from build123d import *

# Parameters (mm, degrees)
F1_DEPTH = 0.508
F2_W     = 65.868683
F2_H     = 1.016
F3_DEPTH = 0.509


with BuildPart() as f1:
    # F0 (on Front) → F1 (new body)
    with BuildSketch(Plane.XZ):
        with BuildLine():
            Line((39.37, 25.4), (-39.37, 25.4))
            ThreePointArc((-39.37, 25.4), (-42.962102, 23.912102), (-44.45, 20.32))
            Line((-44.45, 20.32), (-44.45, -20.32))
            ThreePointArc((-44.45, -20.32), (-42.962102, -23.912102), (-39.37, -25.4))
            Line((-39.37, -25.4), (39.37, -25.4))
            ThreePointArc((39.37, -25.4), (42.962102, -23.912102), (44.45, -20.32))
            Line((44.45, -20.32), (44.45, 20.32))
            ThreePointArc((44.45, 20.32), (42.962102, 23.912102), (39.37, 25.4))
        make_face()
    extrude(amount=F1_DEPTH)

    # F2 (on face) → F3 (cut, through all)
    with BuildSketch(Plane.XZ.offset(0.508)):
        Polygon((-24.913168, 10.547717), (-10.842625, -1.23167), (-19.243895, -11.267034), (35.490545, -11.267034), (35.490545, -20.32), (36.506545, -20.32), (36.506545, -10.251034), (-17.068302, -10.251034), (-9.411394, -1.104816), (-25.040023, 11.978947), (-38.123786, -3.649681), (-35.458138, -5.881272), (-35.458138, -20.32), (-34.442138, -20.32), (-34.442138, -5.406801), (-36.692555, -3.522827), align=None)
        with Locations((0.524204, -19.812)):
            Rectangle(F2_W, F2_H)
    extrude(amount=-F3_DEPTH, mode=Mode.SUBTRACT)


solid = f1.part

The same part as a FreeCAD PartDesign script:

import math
import FreeCAD as App
import Part
import Sketcher
Q = App.Units.Quantity

doc = App.newDocument("Part")
body = doc.addObject("PartDesign::Body", "Body")

# Sketch on XZ plane
sketch1 = body.newObject("Sketcher::SketchObject", "Sketch")
sketch1.AttachmentSupport = (doc.getObject("XZ_Plane"), [""])
sketch1.MapMode = "FlatFace"
sketch1.addGeometry(Part.LineSegment(App.Vector(39, 25, 0), App.Vector(-39, 25, 0)), False)
sketch1.addGeometry(Part.ArcOfCircle(Part.Circle(App.Vector(-39, 20, 0), App.Vector(0, 0, 1), 5), math.radians(90), math.radians(180)), False)
sketch1.addGeometry(Part.LineSegment(App.Vector(-44, 20, 0), App.Vector(-44, -20, 0)), False)
sketch1.addGeometry(Part.ArcOfCircle(Part.Circle(App.Vector(-39, -20, 0), App.Vector(0, 0, 1), 5), math.radians(-180), math.radians(-90)), False)
sketch1.addGeometry(Part.LineSegment(App.Vector(-39, -25, 0), App.Vector(39, -25, 0)), False)
sketch1.addGeometry(Part.ArcOfCircle(Part.Circle(App.Vector(39, -20, 0), App.Vector(0, 0, 1), 5), math.radians(-90), math.radians(0)), False)
sketch1.addGeometry(Part.LineSegment(App.Vector(44, -20, 0), App.Vector(44, 20, 0)), False)
sketch1.addGeometry(Part.ArcOfCircle(Part.Circle(App.Vector(39, 20, 0), App.Vector(0, 0, 1), 5), math.radians(0), math.radians(90)), False)
sketch1.addConstraint(Sketcher.Constraint("Tangent", 0, 2, 1, 1))
sketch1.addConstraint(Sketcher.Constraint("Tangent", 1, 2, 2, 1))
sketch1.addConstraint(Sketcher.Constraint("Tangent", 2, 2, 3, 1))
sketch1.addConstraint(Sketcher.Constraint("Tangent", 3, 2, 4, 1))
sketch1.addConstraint(Sketcher.Constraint("Tangent", 4, 2, 5, 1))
sketch1.addConstraint(Sketcher.Constraint("Tangent", 5, 2, 6, 1))
sketch1.addConstraint(Sketcher.Constraint("Tangent", 6, 2, 7, 1))
sketch1.addConstraint(Sketcher.Constraint("Tangent", 7, 2, 0, 1))
sketch1.addConstraint(Sketcher.Constraint("Horizontal", 0))
sketch1.addConstraint(Sketcher.Constraint("Vertical", 2))
sketch1.addConstraint(Sketcher.Constraint("Horizontal", 4))
sketch1.addConstraint(Sketcher.Constraint("Vertical", 6))
sketch1.addConstraint(Sketcher.Constraint("Equal", 1, 3))
sketch1.addConstraint(Sketcher.Constraint("Equal", 3, 5))
sketch1.addConstraint(Sketcher.Constraint("Equal", 5, 7))
sketch1.addConstraint(Sketcher.Constraint("Symmetric", 1, 3, 5, 3, -1, 1))
sketch1.addConstraint(Sketcher.Constraint("Radius", 1, Q("0.2000001 in")))
sketch1.addConstraint(Sketcher.Constraint("DistanceX", 0, 2, 0, 1, Q("3.1 in")))
sketch1.addConstraint(Sketcher.Constraint("DistanceY", 2, 2, 2, 1, Q("1.6 in")))
pad1 = body.newObject("PartDesign::Pad", "Pad")
pad1.Profile = sketch1
pad1.Length = Q("0.02 in")

# Sketch on XZ plane
sketch2 = body.newObject("Sketcher::SketchObject", "Sketch001")
sketch2.AttachmentSupport = (doc.getObject("XZ_Plane"), [""])
sketch2.MapMode = "FlatFace"
sketch2.AttachmentOffset = App.Placement(App.Vector(0, 0, 0.02 * 25.4), App.Rotation())
sketch2.addGeometry(Part.LineSegment(App.Vector(-24.9, 10.5, 0), App.Vector(-10.8, -1.2, 0)), False)
sketch2.addGeometry(Part.LineSegment(App.Vector(-10.8, -1.2, 0), App.Vector(-19.2, -11.3, 0)), False)
sketch2.addGeometry(Part.LineSegment(App.Vector(-19.2, -11.3, 0), App.Vector(35.5, -11.3, 0)), False)
sketch2.addGeometry(Part.LineSegment(App.Vector(35.5, -11.3, 0), App.Vector(35.5, -20.3, 0)), False)
sketch2.addGeometry(Part.LineSegment(App.Vector(35.5, -20.3, 0), App.Vector(36.5, -20.3, 0)), False)
sketch2.addGeometry(Part.LineSegment(App.Vector(36.5, -20.3, 0), App.Vector(36.5, -10.3, 0)), False)
sketch2.addGeometry(Part.LineSegment(App.Vector(36.5, -10.3, 0), App.Vector(-17.1, -10.3, 0)), False)
sketch2.addGeometry(Part.LineSegment(App.Vector(-17.1, -10.3, 0), App.Vector(-9.4, -1.1, 0)), False)
sketch2.addGeometry(Part.LineSegment(App.Vector(-9.4, -1.1, 0), App.Vector(-25, 12, 0)), False)
sketch2.addGeometry(Part.LineSegment(App.Vector(-25, 12, 0), App.Vector(-38.1, -3.6, 0)), False)
sketch2.addGeometry(Part.LineSegment(App.Vector(-38.1, -3.6, 0), App.Vector(-35.5, -5.9, 0)), False)
sketch2.addGeometry(Part.LineSegment(App.Vector(-35.5, -5.9, 0), App.Vector(-35.5, -20.3, 0)), False)
sketch2.addGeometry(Part.LineSegment(App.Vector(-35.5, -20.3, 0), App.Vector(-34.4, -20.3, 0)), False)
sketch2.addGeometry(Part.LineSegment(App.Vector(-34.4, -20.3, 0), App.Vector(-34.4, -5.4, 0)), False)
sketch2.addGeometry(Part.LineSegment(App.Vector(-34.4, -5.4, 0), App.Vector(-36.7, -3.5, 0)), False)
sketch2.addGeometry(Part.LineSegment(App.Vector(-36.7, -3.5, 0), App.Vector(-24.9, 10.5, 0)), False)
sketch2.addGeometry(Part.LineSegment(App.Vector(-32.4, -19.3, 0), App.Vector(-32.4, -20.3, 0)), False)
sketch2.addGeometry(Part.LineSegment(App.Vector(-32.4, -20.3, 0), App.Vector(33.5, -20.3, 0)), False)
sketch2.addGeometry(Part.LineSegment(App.Vector(33.5, -20.3, 0), App.Vector(33.5, -19.3, 0)), False)
sketch2.addGeometry(Part.LineSegment(App.Vector(33.5, -19.3, 0), App.Vector(-32.4, -19.3, 0)), False)
sketch2.addConstraint(Sketcher.Constraint("Coincident", 0, 2, 1, 1))
sketch2.addConstraint(Sketcher.Constraint("Coincident", 1, 2, 2, 1))
sketch2.addConstraint(Sketcher.Constraint("Coincident", 2, 2, 3, 1))
sketch2.addConstraint(Sketcher.Constraint("Coincident", 3, 2, 4, 1))
sketch2.addConstraint(Sketcher.Constraint("Coincident", 4, 2, 5, 1))
sketch2.addConstraint(Sketcher.Constraint("Coincident", 5, 2, 6, 1))
sketch2.addConstraint(Sketcher.Constraint("Coincident", 6, 2, 7, 1))
sketch2.addConstraint(Sketcher.Constraint("Coincident", 7, 2, 8, 1))
sketch2.addConstraint(Sketcher.Constraint("Coincident", 8, 2, 9, 1))
sketch2.addConstraint(Sketcher.Constraint("Coincident", 9, 2, 10, 1))
sketch2.addConstraint(Sketcher.Constraint("Coincident", 10, 2, 11, 1))
sketch2.addConstraint(Sketcher.Constraint("Coincident", 11, 2, 12, 1))
sketch2.addConstraint(Sketcher.Constraint("Coincident", 12, 2, 13, 1))
sketch2.addConstraint(Sketcher.Constraint("Coincident", 13, 2, 14, 1))
sketch2.addConstraint(Sketcher.Constraint("Coincident", 14, 2, 15, 1))
sketch2.addConstraint(Sketcher.Constraint("Coincident", 15, 2, 0, 1))
sketch2.addConstraint(Sketcher.Constraint("Coincident", 16, 2, 17, 1))
sketch2.addConstraint(Sketcher.Constraint("Coincident", 17, 2, 18, 1))
sketch2.addConstraint(Sketcher.Constraint("Coincident", 18, 2, 19, 1))
sketch2.addConstraint(Sketcher.Constraint("Coincident", 19, 2, 16, 1))
sketch2.addConstraint(Sketcher.Constraint("Horizontal", 2))
sketch2.addConstraint(Sketcher.Constraint("Vertical", 3))
sketch2.addConstraint(Sketcher.Constraint("Horizontal", 4))
sketch2.addConstraint(Sketcher.Constraint("Vertical", 5))
sketch2.addConstraint(Sketcher.Constraint("Horizontal", 6))
sketch2.addConstraint(Sketcher.Constraint("Vertical", 11))
sketch2.addConstraint(Sketcher.Constraint("Horizontal", 12))
sketch2.addConstraint(Sketcher.Constraint("Vertical", 13))
sketch2.addConstraint(Sketcher.Constraint("Vertical", 16))
sketch2.addConstraint(Sketcher.Constraint("Horizontal", 17))
sketch2.addConstraint(Sketcher.Constraint("Vertical", 18))
sketch2.addConstraint(Sketcher.Constraint("Horizontal", 19))
sketch2.addConstraint(Sketcher.Constraint("Perpendicular", 0, 1))
sketch2.addConstraint(Sketcher.Constraint("Parallel", 1, 7))
sketch2.addConstraint(Sketcher.Constraint("Perpendicular", 7, 8))
sketch2.addConstraint(Sketcher.Constraint("Perpendicular", 8, 9))
sketch2.addConstraint(Sketcher.Constraint("Perpendicular", 9, 10))
sketch2.addConstraint(Sketcher.Constraint("Parallel", 10, 14))
sketch2.addConstraint(Sketcher.Constraint("Perpendicular", 14, 15))
sketch2.addConstraint(Sketcher.Constraint("Horizontal", 4, 2, 11, 2))
sketch2.addConstraint(Sketcher.Constraint("Horizontal", 12, 2, 16, 2))
sketch2.addConstraint(Sketcher.Constraint("Equal", 4, 12))
sketch2.addConstraint(Sketcher.Constraint("Equal", 12, 16))
sketch2.addConstraint(Sketcher.Constraint("Equal", 8, 9))
sketch2.addConstraint(Sketcher.Constraint("Equal", 0, 15))
sketch2.addConstraint(Sketcher.Constraint("DistanceX", 4, 1, 4, 2, Q("0.04 in")))
sketch2.addConstraint(Sketcher.Constraint("DistanceY", 3, 2, -1, 1, Q("0.8 in")))
sketch2.addConstraint(Sketcher.Constraint("DistanceY", 2, 2, 5, 2, Q("0.04 in")))
sketch2.addConstraint(Sketcher.Constraint("DistanceX", 12, 2, 16, 2, Q("0.08 in")))
sketch2.addConstraint(Sketcher.Constraint("DistanceX", 17, 2, 3, 2, Q("0.08 in")))
sketch2.addConstraint(Sketcher.Constraint("DistanceY", 13, 1, 13, 2, 14.913199))
sketch2.addConstraint(Sketcher.Constraint("DistanceX", 2, 1, 2, 2, 54.73444))
sketch2.addConstraint(Sketcher.Constraint("DistanceY", 11, 2, 11, 1, 14.438728))
sketch2.addConstraint(Sketcher.Constraint("DistanceX", 6, 2, -1, 1, 17.068302))
sketch2.addConstraint(Sketcher.Constraint("DistanceX", 1, 2, 7, 2, 9.832501))
sketch2.addConstraint(Sketcher.Constraint("DistanceX", 8, 2, 0, 2, 14.197398))
sketch2.addConstraint(Sketcher.Constraint("DistanceY", 10, 2, 0, 2, 4.649602))
sketch2.addConstraint(Sketcher.Constraint("Distance", 8, 20.382318))
sketch2.addConstraint(Sketcher.Constraint("DistanceX", 6, 2, 6, 1, 53.574847))
sketch2.addConstraint(Sketcher.Constraint("DistanceX", 17, 1, 17, 2, 65.868683))
pocket1 = body.newObject("PartDesign::Pocket", "Pocket")
pocket1.Profile = sketch2
pocket1.Type = "ThroughAll"

doc.recompute()
